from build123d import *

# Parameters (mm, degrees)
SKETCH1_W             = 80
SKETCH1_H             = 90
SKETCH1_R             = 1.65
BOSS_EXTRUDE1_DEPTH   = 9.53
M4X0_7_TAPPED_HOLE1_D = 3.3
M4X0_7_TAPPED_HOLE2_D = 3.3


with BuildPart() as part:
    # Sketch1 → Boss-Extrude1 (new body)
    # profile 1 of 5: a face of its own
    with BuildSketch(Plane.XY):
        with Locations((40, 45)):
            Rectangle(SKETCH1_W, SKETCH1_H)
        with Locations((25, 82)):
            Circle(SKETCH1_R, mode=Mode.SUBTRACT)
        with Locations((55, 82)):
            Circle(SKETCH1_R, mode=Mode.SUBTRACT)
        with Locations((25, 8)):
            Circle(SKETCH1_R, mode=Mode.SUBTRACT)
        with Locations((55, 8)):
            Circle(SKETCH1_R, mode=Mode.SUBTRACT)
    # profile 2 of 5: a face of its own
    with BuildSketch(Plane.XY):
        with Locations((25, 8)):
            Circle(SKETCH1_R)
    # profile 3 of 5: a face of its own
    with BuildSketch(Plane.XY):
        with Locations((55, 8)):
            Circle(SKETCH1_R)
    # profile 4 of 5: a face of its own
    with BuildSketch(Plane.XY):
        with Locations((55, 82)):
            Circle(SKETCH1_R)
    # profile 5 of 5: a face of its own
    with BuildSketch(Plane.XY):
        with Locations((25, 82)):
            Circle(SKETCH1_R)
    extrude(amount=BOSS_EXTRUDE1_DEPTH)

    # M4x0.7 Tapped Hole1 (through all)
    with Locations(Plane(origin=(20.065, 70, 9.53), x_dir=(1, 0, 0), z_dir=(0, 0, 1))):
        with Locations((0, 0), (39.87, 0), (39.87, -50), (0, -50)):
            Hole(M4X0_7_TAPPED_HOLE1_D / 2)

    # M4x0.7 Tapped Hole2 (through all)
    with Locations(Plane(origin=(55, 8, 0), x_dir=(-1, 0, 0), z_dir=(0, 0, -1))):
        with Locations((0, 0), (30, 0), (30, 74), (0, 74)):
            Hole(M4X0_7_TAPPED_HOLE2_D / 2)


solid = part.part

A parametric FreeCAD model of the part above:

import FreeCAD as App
import Part
import Sketcher

V = App.Vector


def add_polygon(sketch, points):
    """Adds a closed chain of lines whose ends are joined by coincident constraints."""
    first, n = sketch.GeometryCount, len(points)
    for a, b in zip(points, points[1:] + points[:1]):
        sketch.addGeometry(Part.LineSegment(App.Vector(*a, 0), App.Vector(*b, 0)), False)
    for i in range(n):
        sketch.addConstraint(Sketcher.Constraint("Coincident", first + i, 2, first + (i + 1) % n, 1))

doc = App.newDocument("Part")
body = doc.addObject("PartDesign::Body", "Body")

sketch1 = doc.addObject("Sketcher::SketchObject", "Sketch")
body.addObject(sketch1)
sketch1.AttachmentSupport = (doc.XY_Plane, [""])
sketch1.MapMode = "FlatFace"
add_polygon(sketch1, [(0, 90), (0, 0), (80, 0), (80, 90)])
sketch1.addConstraint([
    Sketcher.Constraint("Vertical", 0),
    Sketcher.Constraint("Horizontal", 1),
    Sketcher.Constraint("Vertical", 2),
    Sketcher.Constraint("Horizontal", 3),
    Sketcher.Constraint("Coincident", 0, 2, -1, 1),
    Sketcher.Constraint("DistanceX", 1, 1, 1, 2, 80.0),
    Sketcher.Constraint("DistanceY", 0, 2, 0, 1, 90.0),
])
pad1 = doc.addObject("PartDesign::Pad", "Pad")
body.addObject(pad1)
pad1.Profile = sketch1
pad1.Length = 9.53

sketch2 = doc.addObject("Sketcher::SketchObject", "Sketch001")
body.addObject(sketch2)
sketch2.AttachmentSupport = (doc.XY_Plane, [""])
sketch2.MapMode = "FlatFace"
sketch2.AttachmentOffset = App.Placement(V(0, 0, 9.53), App.Rotation())
sketch2.addGeometry([
    Part.Circle(V(20.065, 70, 0), V(0, 0, 1), 1.65),
    Part.Circle(V(59.935, 70, 0), V(0, 0, 1), 1.65),
    Part.Circle(V(59.935, 20, 0), V(0, 0, 1), 1.65),
    Part.Circle(V(20.065, 20, 0), V(0, 0, 1), 1.65),
], False)
sketch2.addConstraint([
    Sketcher.Constraint("Equal", 0, 1),
    Sketcher.Constraint("Equal", 1, 2),
    Sketcher.Constraint("Equal", 2, 3),
    Sketcher.Constraint("Horizontal", 0, 3, 1, 3),
    Sketcher.Constraint("Horizontal", 2, 3, 3, 3),
    Sketcher.Constraint("Vertical", 1, 3, 2, 3),
    Sketcher.Constraint("Vertical", 0, 3, 3, 3),
    Sketcher.Constraint("Diameter", 0, 3.3),
    Sketcher.Constraint("DistanceY", -1, 1, 0, 3, 70.0),
    Sketcher.Constraint("DistanceY", -1, 1, 2, 3, 20.0),
    Sketcher.Constraint("DistanceX", 0, 3, 1, 3, 39.87),
    Sketcher.Constraint("DistanceX", -1, 1, 0, 3, 20.065),
])
doc.recompute()
hole = doc.addObject("PartDesign::Hole", "Hole")
body.addObject(hole)
hole.Profile = sketch2
hole.ThreadType = "None"
hole.Diameter = 3.3
hole.DepthType = "ThroughAll"

sketch3 = doc.addObject("Sketcher::SketchObject", "Sketch002")
body.addObject(sketch3)
sketch3.AttachmentSupport = (doc.XY_Plane, [""])
sketch3.MapMode = "FlatFace"
sketch3.addGeometry([
    Part.Circle(V(55, 8, 0), V(0, 0, 1), 1.65),
    Part.Circle(V(25, 8, 0), V(0, 0, 1), 1.65),
    Part.Circle(V(25, 82, 0), V(0, 0, 1), 1.65),
    Part.Circle(V(55, 82, 0), V(0, 0, 1), 1.65),
], False)
sketch3.addConstraint([
    Sketcher.Constraint("Equal", 0, 1),
    Sketcher.Constraint("Equal", 1, 2),
    Sketcher.Constraint("Equal", 2, 3),
    Sketcher.Constraint("Horizontal", 0, 3, 1, 3),
    Sketcher.Constraint("Horizontal", 2, 3, 3, 3),
    Sketcher.Constraint("Vertical", 1, 3, 2, 3),
    Sketcher.Constraint("Vertical", 0, 3, 3, 3),
    Sketcher.Constraint("Diameter", 0, 3.3),
    Sketcher.Constraint("DistanceX", -1, 1, 0, 3, 55.0),
    Sketcher.Constraint("DistanceY", -1, 1, 0, 3, 8.0),
    Sketcher.Constraint("DistanceX", -1, 1, 1, 3, 25.0),
    Sketcher.Constraint("DistanceY", -1, 1, 2, 3, 82.0),
])
doc.recompute()
hole2 = doc.addObject("PartDesign::Hole", "Hole001")
body.addObject(hole2)
hole2.Profile = sketch3
hole2.ThreadType = "None"
hole2.Diameter = 3.3
hole2.DepthType = "ThroughAll"
hole2.Reversed = True

doc.recompute()
